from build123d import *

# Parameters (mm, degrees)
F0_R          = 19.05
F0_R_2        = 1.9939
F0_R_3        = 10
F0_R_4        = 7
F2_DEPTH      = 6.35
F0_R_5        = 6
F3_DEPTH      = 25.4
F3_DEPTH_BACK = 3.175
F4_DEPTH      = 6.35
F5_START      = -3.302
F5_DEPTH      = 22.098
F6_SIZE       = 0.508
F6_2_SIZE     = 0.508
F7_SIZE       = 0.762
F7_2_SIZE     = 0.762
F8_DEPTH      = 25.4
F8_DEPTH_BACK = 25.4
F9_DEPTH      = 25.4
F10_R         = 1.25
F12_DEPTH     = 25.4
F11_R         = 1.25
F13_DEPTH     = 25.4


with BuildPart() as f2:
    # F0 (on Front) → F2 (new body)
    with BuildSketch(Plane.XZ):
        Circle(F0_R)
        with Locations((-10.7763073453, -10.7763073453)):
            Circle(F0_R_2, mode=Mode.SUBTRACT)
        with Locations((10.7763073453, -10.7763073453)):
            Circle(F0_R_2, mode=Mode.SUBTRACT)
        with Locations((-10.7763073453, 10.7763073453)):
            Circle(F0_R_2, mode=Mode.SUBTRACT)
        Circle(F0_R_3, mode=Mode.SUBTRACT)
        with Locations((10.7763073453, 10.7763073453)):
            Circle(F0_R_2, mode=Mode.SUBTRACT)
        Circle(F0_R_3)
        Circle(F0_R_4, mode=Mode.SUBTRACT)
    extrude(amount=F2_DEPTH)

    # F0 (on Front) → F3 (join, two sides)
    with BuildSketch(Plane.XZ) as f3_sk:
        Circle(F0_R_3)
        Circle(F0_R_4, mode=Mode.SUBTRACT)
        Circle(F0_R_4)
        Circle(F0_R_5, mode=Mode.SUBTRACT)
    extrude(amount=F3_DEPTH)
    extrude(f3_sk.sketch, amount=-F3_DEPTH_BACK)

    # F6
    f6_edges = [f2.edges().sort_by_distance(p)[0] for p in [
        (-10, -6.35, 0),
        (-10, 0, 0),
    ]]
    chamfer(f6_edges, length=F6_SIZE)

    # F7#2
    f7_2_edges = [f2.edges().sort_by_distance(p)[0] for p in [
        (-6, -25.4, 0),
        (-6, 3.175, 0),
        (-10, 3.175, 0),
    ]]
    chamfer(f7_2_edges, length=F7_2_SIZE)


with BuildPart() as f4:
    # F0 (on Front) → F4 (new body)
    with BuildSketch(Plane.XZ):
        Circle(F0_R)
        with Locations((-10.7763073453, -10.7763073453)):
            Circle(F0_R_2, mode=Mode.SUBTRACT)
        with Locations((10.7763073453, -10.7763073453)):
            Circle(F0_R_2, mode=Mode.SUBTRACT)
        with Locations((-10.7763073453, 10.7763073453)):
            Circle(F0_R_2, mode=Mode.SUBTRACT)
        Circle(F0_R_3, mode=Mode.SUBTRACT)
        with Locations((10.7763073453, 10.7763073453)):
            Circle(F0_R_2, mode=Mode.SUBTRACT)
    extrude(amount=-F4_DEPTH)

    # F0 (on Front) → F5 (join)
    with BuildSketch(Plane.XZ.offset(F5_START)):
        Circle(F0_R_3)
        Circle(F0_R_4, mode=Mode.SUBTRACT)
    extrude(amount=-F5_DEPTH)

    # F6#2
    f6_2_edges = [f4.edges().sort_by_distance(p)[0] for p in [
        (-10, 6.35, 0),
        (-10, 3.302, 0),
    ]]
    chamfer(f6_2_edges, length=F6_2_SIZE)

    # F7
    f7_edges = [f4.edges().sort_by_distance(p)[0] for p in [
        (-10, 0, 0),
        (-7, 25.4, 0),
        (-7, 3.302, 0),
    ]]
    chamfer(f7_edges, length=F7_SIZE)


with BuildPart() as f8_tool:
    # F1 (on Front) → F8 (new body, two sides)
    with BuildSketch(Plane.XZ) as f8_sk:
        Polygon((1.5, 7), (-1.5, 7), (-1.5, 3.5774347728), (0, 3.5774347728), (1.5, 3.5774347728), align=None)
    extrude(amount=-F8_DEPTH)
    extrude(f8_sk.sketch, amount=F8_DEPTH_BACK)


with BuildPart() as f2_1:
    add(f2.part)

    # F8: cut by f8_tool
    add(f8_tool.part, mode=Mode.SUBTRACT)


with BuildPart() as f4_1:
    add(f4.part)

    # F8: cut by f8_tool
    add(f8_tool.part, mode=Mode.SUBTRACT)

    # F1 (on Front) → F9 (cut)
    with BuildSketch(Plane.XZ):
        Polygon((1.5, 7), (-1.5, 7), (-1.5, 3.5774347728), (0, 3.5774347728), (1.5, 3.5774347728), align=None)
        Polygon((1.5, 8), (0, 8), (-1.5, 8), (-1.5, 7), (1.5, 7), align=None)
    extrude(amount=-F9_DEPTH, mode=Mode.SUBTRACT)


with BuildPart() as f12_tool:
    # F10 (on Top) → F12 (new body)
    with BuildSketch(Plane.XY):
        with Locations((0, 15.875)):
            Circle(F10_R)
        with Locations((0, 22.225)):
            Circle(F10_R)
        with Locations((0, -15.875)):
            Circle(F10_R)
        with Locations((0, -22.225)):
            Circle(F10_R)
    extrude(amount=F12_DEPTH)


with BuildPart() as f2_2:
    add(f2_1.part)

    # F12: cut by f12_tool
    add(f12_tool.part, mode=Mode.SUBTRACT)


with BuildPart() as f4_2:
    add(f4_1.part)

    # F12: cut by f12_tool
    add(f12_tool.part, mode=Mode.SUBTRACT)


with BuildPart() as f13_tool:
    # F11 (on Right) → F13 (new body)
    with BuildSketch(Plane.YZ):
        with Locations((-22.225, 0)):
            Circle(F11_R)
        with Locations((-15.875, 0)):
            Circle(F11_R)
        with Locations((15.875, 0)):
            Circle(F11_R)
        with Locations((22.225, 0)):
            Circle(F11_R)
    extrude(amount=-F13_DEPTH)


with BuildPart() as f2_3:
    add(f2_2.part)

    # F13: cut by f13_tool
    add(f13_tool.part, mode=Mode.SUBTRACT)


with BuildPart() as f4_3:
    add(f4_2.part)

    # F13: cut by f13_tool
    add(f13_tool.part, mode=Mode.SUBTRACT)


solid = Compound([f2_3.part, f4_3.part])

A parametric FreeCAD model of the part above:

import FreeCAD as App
import Part
import Sketcher
Q = App.Units.Quantity


def edges_at(feature, points):
    """Names of the edges that pass closest to the given points."""
    edges = feature.Shape.Edges
    near = lambda p: min(range(len(edges)), key=lambda i: edges[i].distToShape(Part.Vertex(*p))[0])
    return sorted({f"Edge{near(p) + 1}" for p in points})


def add_polygon(sketch, points):
    """Adds a closed chain of lines whose ends are joined by coincident constraints."""
    first, n = sketch.GeometryCount, len(points)
    for a, b in zip(points, points[1:] + points[:1]):
        sketch.addGeometry(Part.LineSegment(App.Vector(*a, 0), App.Vector(*b, 0)), False)
    for i in range(n):
        sketch.addConstraint(Sketcher.Constraint("Coincident", first + i, 2, first + (i + 1) % n, 1))

doc = App.newDocument("Part")
params = doc.addObject("Spreadsheet::Sheet", "Params")
for row, (alias, value) in enumerate([
    ("sketch1_diameter", "1.5 in"),
    ("sketch1_diameter2", "0.157 in"),
    ("pad1_length", "0.25 in"),
    ("pad2_length", "1 in"),
    ("pad2_length2", "0.125 in"),
    ("chamfer_size", "0.02 in"),
    ("chamfer2_size", "0.03 in"),
    ("sketch3_diameter", "1.5 in"),
    ("sketch3_diameter2", "0.157 in"),
    ("pad3_length", "0.25 in"),
    ("pad4_length", "0.87 in"),
    ("chamfer3_size", "0.02 in"),
    ("chamfer4_size", "0.03 in"),
    ("pad5_length", "1 in"),
    ("pad5_length2", "1 in"),
    ("pocket1_length", "1 in"),
    ("pad6_length", "1 in"),
    ("pad7_length", "1 in"),
], start=1):
    params.set(f"A{row}", alias)
    params.set(f"B{row}", "=" + value)
    params.setAlias(f"B{row}", alias)

body = doc.addObject("PartDesign::Body", "Body")

# Sketch on XZ plane
sketch1 = doc.addObject("Sketcher::SketchObject", "Sketch")
body.addObject(sketch1)
sketch1.AttachmentSupport = (doc.XZ_Plane, [""])
sketch1.MapMode = "FlatFace"
sketch1.addGeometry(Part.Circle(App.Vector(0, 0, 0), App.Vector(0, 0, 1), 19.1), False)
sketch1.addGeometry(Part.Circle(App.Vector(-10.8, -10.8, 0), App.Vector(0, 0, 1), 2), False)
sketch1.addGeometry(Part.Circle(App.Vector(10.8, -10.8, 0), App.Vector(0, 0, 1), 2), False)
sketch1.addGeometry(Part.Circle(App.Vector(-10.8, 10.8, 0), App.Vector(0, 0, 1), 2), False)
sketch1.addGeometry(Part.Circle(App.Vector(0, 0, 0), App.Vector(0, 0, 1), 7), False)
sketch1.addGeometry(Part.Circle(App.Vector(10.8, 10.8, 0), App.Vector(0, 0, 1), 2), False)
sketch1.addConstraint(Sketcher.Constraint("Coincident", 0, 3, -1, 1))
sketch1.addConstraint(Sketcher.Constraint("Coincident", 4, 3, -1, 1))
sketch1.addConstraint(Sketcher.Constraint("Equal", 1, 2))
sketch1.addConstraint(Sketcher.Constraint("Equal", 2, 3))
sketch1.addConstraint(Sketcher.Constraint("Equal", 3, 5))
sketch1.addConstraint(Sketcher.Constraint("Symmetric", 2, 3, 3, 3, -1, 1))
sketch1.addConstraint(Sketcher.Constraint("Symmetric", 1, 3, 5, 3, -1, 1))
sketch1.addConstraint(Sketcher.Constraint("Symmetric", 1, 3, 2, 3, -2))
sketch1.addConstraint(Sketcher.Constraint("Diameter", 0, Q("1.5 in")))
sketch1.addConstraint(Sketcher.Constraint("Diameter", 1, Q("0.157 in")))
sketch1.addConstraint(Sketcher.Constraint("Diameter", 4, 14.0))
sketch1.addConstraint(Sketcher.Constraint("DistanceX", 1, 3, -1, 1, 10.776307))
sketch1.addConstraint(Sketcher.Constraint("DistanceY", 1, 3, -1, 1, 10.776307))
sketch1.setExpression("Constraints[8]", "Params.sketch1_diameter")
sketch1.setExpression("Constraints[9]", "Params.sketch1_diameter2")
pad1 = doc.addObject("PartDesign::Pad", "Pad")
body.addObject(pad1)
pad1.Profile = sketch1
pad1.setExpression("Length", "Params.pad1_length")

# Sketch on XZ plane
sketch2 = doc.addObject("Sketcher::SketchObject", "Sketch001")
body.addObject(sketch2)
sketch2.AttachmentSupport = (doc.XZ_Plane, [""])
sketch2.MapMode = "FlatFace"
sketch2.addGeometry(Part.Circle(App.Vector(0, 0, 0), App.Vector(0, 0, 1), 10), False)
sketch2.addGeometry(Part.Circle(App.Vector(0, 0, 0), App.Vector(0, 0, 1), 6), False)
sketch2.addConstraint(Sketcher.Constraint("Coincident", 0, 3, -1, 1))
sketch2.addConstraint(Sketcher.Constraint("Coincident", 1, 3, -1, 1))
sketch2.addConstraint(Sketcher.Constraint("Diameter", 0, 20.0))
sketch2.addConstraint(Sketcher.Constraint("Diameter", 1, 12.0))
pad2 = doc.addObject("PartDesign::Pad", "Pad001")
body.addObject(pad2)
pad2.Profile = sketch2
pad2.Type = "TwoLengths"
pad2.setExpression("Length", "Params.pad2_length")
pad2.setExpression("Length2", "Params.pad2_length2")
doc.recompute()

chamfer = doc.addObject("PartDesign::Chamfer", "Chamfer")
body.addObject(chamfer)
chamfer.Base = (pad2, edges_at(pad2, [(-10, -6.35, 0), (-10, 0, 0)]))
chamfer.setExpression("Size", "Params.chamfer_size")
doc.recompute()

chamfer2 = doc.addObject("PartDesign::Chamfer", "Chamfer001")
body.addObject(chamfer2)
chamfer2.Base = (chamfer, edges_at(chamfer, [(-6, -25.4, 0), (-6, 3.175, 0), (-10, 3.175, 0)]))
chamfer2.setExpression("Size", "Params.chamfer2_size")
body2 = doc.addObject("PartDesign::Body", "Body001")

# Sketch on XZ plane
sketch3 = doc.addObject("Sketcher::SketchObject", "Sketch002")
body2.addObject(sketch3)
sketch3.AttachmentSupport = (doc.getObject("XZ_Plane001"), [""])
sketch3.MapMode = "FlatFace"
sketch3.addGeometry(Part.Circle(App.Vector(0, 0, 0), App.Vector(0, 0, 1), 19.1), False)
sketch3.addGeometry(Part.Circle(App.Vector(-10.8, -10.8, 0), App.Vector(0, 0, 1), 2), False)
sketch3.addGeometry(Part.Circle(App.Vector(10.8, -10.8, 0), App.Vector(0, 0, 1), 2), False)
sketch3.addGeometry(Part.Circle(App.Vector(-10.8, 10.8, 0), App.Vector(0, 0, 1), 2), False)
sketch3.addGeometry(Part.Circle(App.Vector(0, 0, 0), App.Vector(0, 0, 1), 10), False)
sketch3.addGeometry(Part.Circle(App.Vector(10.8, 10.8, 0), App.Vector(0, 0, 1), 2), False)
sketch3.addConstraint(Sketcher.Constraint("Coincident", 0, 3, -1, 1))
sketch3.addConstraint(Sketcher.Constraint("Coincident", 4, 3, -1, 1))
sketch3.addConstraint(Sketcher.Constraint("Equal", 1, 2))
sketch3.addConstraint(Sketcher.Constraint("Equal", 2, 3))
sketch3.addConstraint(Sketcher.Constraint("Equal", 3, 5))
sketch3.addConstraint(Sketcher.Constraint("Symmetric", 2, 3, 3, 3, -1, 1))
sketch3.addConstraint(Sketcher.Constraint("Symmetric", 1, 3, 5, 3, -1, 1))
sketch3.addConstraint(Sketcher.Constraint("Symmetric", 1, 3, 2, 3, -2))
sketch3.addConstraint(Sketcher.Constraint("Diameter", 0, Q("1.5 in")))
sketch3.addConstraint(Sketcher.Constraint("Diameter", 1, Q("0.157 in")))
sketch3.addConstraint(Sketcher.Constraint("Diameter", 4, 20.0))
sketch3.addConstraint(Sketcher.Constraint("DistanceX", 1, 3, -1, 1, 10.776307))
sketch3.addConstraint(Sketcher.Constraint("DistanceY", 1, 3, -1, 1, 10.776307))
sketch3.setExpression("Constraints[8]", "Params.sketch3_diameter")
sketch3.setExpression("Constraints[9]", "Params.sketch3_diameter2")
pad3 = doc.addObject("PartDesign::Pad", "Pad002")
body2.addObject(pad3)
pad3.Profile = sketch3
pad3.setExpression("Length", "Params.pad3_length")
pad3.Reversed = True

# Sketch on XZ plane
sketch4 = doc.addObject("Sketcher::SketchObject", "Sketch003")
body2.addObject(sketch4)
sketch4.AttachmentSupport = (doc.getObject("XZ_Plane001"), [""])
sketch4.MapMode = "FlatFace"
sketch4.AttachmentOffset = App.Placement(App.Vector(0, 0, -0.13 * 25.4), App.Rotation())
sketch4.addGeometry(Part.Circle(App.Vector(0, 0, 0), App.Vector(0, 0, 1), 10), False)
sketch4.addGeometry(Part.Circle(App.Vector(0, 0, 0), App.Vector(0, 0, 1), 7), False)
sketch4.addConstraint(Sketcher.Constraint("Coincident", 0, 3, -1, 1))
sketch4.addConstraint(Sketcher.Constraint("Coincident", 1, 3, -1, 1))
sketch4.addConstraint(Sketcher.Constraint("Diameter", 0, 20.0))
sketch4.addConstraint(Sketcher.Constraint("Diameter", 1, 14.0))
pad4 = doc.addObject("PartDesign::Pad", "Pad003")
body2.addObject(pad4)
pad4.Profile = sketch4
pad4.setExpression("Length", "Params.pad4_length")
pad4.Reversed = True
doc.recompute()

chamfer3 = doc.addObject("PartDesign::Chamfer", "Chamfer002")
body2.addObject(chamfer3)
chamfer3.Base = (pad4, edges_at(pad4, [(-10, 6.35, 0), (-10, 3.302, 0)]))
chamfer3.setExpression("Size", "Params.chamfer3_size")
doc.recompute()

chamfer4 = doc.addObject("PartDesign::Chamfer", "Chamfer003")
body2.addObject(chamfer4)
chamfer4.Base = (chamfer3, edges_at(chamfer3, [(-10, 0, 0), (-7, 25.4, 0), (-7, 3.302, 0)]))
chamfer4.setExpression("Size", "Params.chamfer4_size")
body3 = doc.addObject("PartDesign::Body", "Body002")

# Sketch on XZ plane
sketch5 = doc.addObject("Sketcher::SketchObject", "Sketch004")
body3.addObject(sketch5)
sketch5.AttachmentSupport = (doc.getObject("XZ_Plane002"), [""])
sketch5.MapMode = "FlatFace"
add_polygon(sketch5, [(1.5, 7), (-1.5, 7), (-1.5, 3.6), (1.5, 3.6)])  # lines 0-3
sketch5.addConstraint(Sketcher.Constraint("Horizontal", 0))
sketch5.addConstraint(Sketcher.Constraint("Vertical", 1))
sketch5.addConstraint(Sketcher.Constraint("Horizontal", 2))
sketch5.addConstraint(Sketcher.Constraint("Vertical", 3))
sketch5.addConstraint(Sketcher.Constraint("DistanceX", 0, 2, 0, 1, 3.0))
sketch5.addConstraint(Sketcher.Constraint("DistanceX", 0, 2, -1, 1, 1.5))
sketch5.addConstraint(Sketcher.Constraint("DistanceY", -1, 1, 0, 2, 7.0))
sketch5.addConstraint(Sketcher.Constraint("DistanceY", 1, 2, 1, 1, 3.422565))
pad5 = doc.addObject("PartDesign::Pad", "Pad004")
body3.addObject(pad5)
pad5.Profile = sketch5
pad5.Type = "TwoLengths"
pad5.setExpression("Length", "Params.pad5_length")
pad5.setExpression("Length2", "Params.pad5_length2")
pad5.Reversed = True
doc.recompute()

body4 = doc.addObject("PartDesign::Body", "Body003")
body4.BaseFeature = body3
boolean = doc.addObject("PartDesign::Boolean", "Boolean")
body.addObject(boolean)
boolean.Type = "Cut"
boolean.addObjects([body4])
doc.recompute()

boolean2 = doc.addObject("PartDesign::Boolean", "Boolean001")
body2.addObject(boolean2)
boolean2.Type = "Cut"
boolean2.addObjects([body3])

# Sketch on XZ plane
sketch6 = doc.addObject("Sketcher::SketchObject", "Sketch005")
body2.addObject(sketch6)
sketch6.AttachmentSupport = (doc.getObject("XZ_Plane001"), [""])
sketch6.MapMode = "FlatFace"
add_polygon(sketch6, [(-1.5, 3.6), (1.5, 3.6), (1.5, 8), (-1.5, 8)])  # lines 0-3
sketch6.addConstraint(Sketcher.Constraint("Horizontal", 0))
sketch6.addConstraint(Sketcher.Constraint("Vertical", 1))
sketch6.addConstraint(Sketcher.Constraint("Horizontal", 2))
sketch6.addConstraint(Sketcher.Constraint("Vertical", 3))
sketch6.addConstraint(Sketcher.Constraint("DistanceX", 0, 1, 0, 2, 3.0))
sketch6.addConstraint(Sketcher.Constraint("DistanceX", -1, 1, 0, 2, 1.5))
sketch6.addConstraint(Sketcher.Constraint("DistanceY", -1, 1, 1, 2, 8.0))
sketch6.addConstraint(Sketcher.Constraint("DistanceY", 1, 1, 1, 2, 4.422565))
pocket1 = doc.addObject("PartDesign::Pocket", "Pocket")
body2.addObject(pocket1)
pocket1.Profile = sketch6
pocket1.setExpression("Length", "Params.pocket1_length")
body5 = doc.addObject("PartDesign::Body", "Body004")
body5.AllowCompound = True

# Sketch on XY plane
sketch7 = doc.addObject("Sketcher::SketchObject", "Sketch006")
body5.addObject(sketch7)
sketch7.AttachmentSupport = (doc.getObject("XY_Plane004"), [""])
sketch7.MapMode = "FlatFace"
sketch7.addGeometry(Part.Circle(App.Vector(0, 15.9, 0), App.Vector(0, 0, 1), 1.2), False)
sketch7.addGeometry(Part.Circle(App.Vector(0, 22.2, 0), App.Vector(0, 0, 1), 1.2), False)
sketch7.addGeometry(Part.Circle(App.Vector(0, -15.9, 0), App.Vector(0, 0, 1), 1.2), False)
sketch7.addGeometry(Part.Circle(App.Vector(0, -22.2, 0), App.Vector(0, 0, 1), 1.2), False)
sketch7.addConstraint(Sketcher.Constraint("Equal", 0, 1))
sketch7.addConstraint(Sketcher.Constraint("Equal", 1, 2))
sketch7.addConstraint(Sketcher.Constraint("Equal", 2, 3))
sketch7.addConstraint(Sketcher.Constraint("Symmetric", 0, 3, 2, 3, -1, 1))
sketch7.addConstraint(Sketcher.Constraint("Symmetric", 1, 3, 3, 3, -1, 1))
sketch7.addConstraint(Sketcher.Constraint("PointOnObject", 0, 3, -2))
sketch7.addConstraint(Sketcher.Constraint("PointOnObject", 1, 3, -2))
sketch7.addConstraint(Sketcher.Constraint("DistanceY", 2, 3, 1, 3, Q("1.5 in")))
sketch7.addConstraint(Sketcher.Constraint("Diameter", 0, 2.5))
sketch7.addConstraint(Sketcher.Constraint("DistanceY", 0, 3, 1, 3, Q("0.25 in")))
pad6 = doc.addObject("PartDesign::Pad", "Pad005")
body5.addObject(pad6)
pad6.Profile = sketch7
pad6.setExpression("Length", "Params.pad6_length")
doc.recompute()

body6 = doc.addObject("PartDesign::Body", "Body005")
body6.BaseFeature = body5
boolean3 = doc.addObject("PartDesign::Boolean", "Boolean002")
body.addObject(boolean3)
boolean3.Type = "Cut"
boolean3.addObjects([body6])
doc.recompute()

boolean4 = doc.addObject("PartDesign::Boolean", "Boolean003")
body2.addObject(boolean4)
boolean4.Type = "Cut"
boolean4.addObjects([body5])
body7 = doc.addObject("PartDesign::Body", "Body006")
body7.AllowCompound = True

# Sketch on YZ plane
sketch8 = doc.addObject("Sketcher::SketchObject", "Sketch007")
body7.addObject(sketch8)
sketch8.AttachmentSupport = (doc.getObject("YZ_Plane006"), [""])
sketch8.MapMode = "FlatFace"
sketch8.addGeometry(Part.Circle(App.Vector(-22.2, 0, 0), App.Vector(0, 0, 1), 1.2), False)
sketch8.addGeometry(Part.Circle(App.Vector(-15.9, 0, 0), App.Vector(0, 0, 1), 1.2), False)
sketch8.addGeometry(Part.Circle(App.Vector(15.9, 0, 0), App.Vector(0, 0, 1), 1.2), False)
sketch8.addGeometry(Part.Circle(App.Vector(22.2, 0, 0), App.Vector(0, 0, 1), 1.2), False)
sketch8.addConstraint(Sketcher.Constraint("Equal", 0, 1))
sketch8.addConstraint(Sketcher.Constraint("Equal", 1, 2))
sketch8.addConstraint(Sketcher.Constraint("Equal", 2, 3))
sketch8.addConstraint(Sketcher.Constraint("Symmetric", 1, 3, 2, 3, -1, 1))
sketch8.addConstraint(Sketcher.Constraint("Symmetric", 0, 3, 3, 3, -1, 1))
sketch8.addConstraint(Sketcher.Constraint("PointOnObject", 0, 3, -1))
sketch8.addConstraint(Sketcher.Constraint("PointOnObject", 1, 3, -1))
sketch8.addConstraint(Sketcher.Constraint("DistanceX", 0, 3, 2, 3, Q("1.5 in")))
sketch8.addConstraint(Sketcher.Constraint("Diameter", 0, 2.5))
sketch8.addConstraint(Sketcher.Constraint("DistanceX", 0, 3, 1, 3, Q("0.25 in")))
pad7 = doc.addObject("PartDesign::Pad", "Pad006")
body7.addObject(pad7)
pad7.Profile = sketch8
pad7.setExpression("Length", "Params.pad7_length")
pad7.Reversed = True
doc.recompute()

body8 = doc.addObject("PartDesign::Body", "Body007")
body8.BaseFeature = body7
boolean5 = doc.addObject("PartDesign::Boolean", "Boolean004")
body.addObject(boolean5)
boolean5.Type = "Cut"
boolean5.addObjects([body8])
doc.recompute()

boolean6 = doc.addObject("PartDesign::Boolean", "Boolean005")
body2.addObject(boolean6)
boolean6.Type = "Cut"
boolean6.addObjects([body7])

doc.recompute()
